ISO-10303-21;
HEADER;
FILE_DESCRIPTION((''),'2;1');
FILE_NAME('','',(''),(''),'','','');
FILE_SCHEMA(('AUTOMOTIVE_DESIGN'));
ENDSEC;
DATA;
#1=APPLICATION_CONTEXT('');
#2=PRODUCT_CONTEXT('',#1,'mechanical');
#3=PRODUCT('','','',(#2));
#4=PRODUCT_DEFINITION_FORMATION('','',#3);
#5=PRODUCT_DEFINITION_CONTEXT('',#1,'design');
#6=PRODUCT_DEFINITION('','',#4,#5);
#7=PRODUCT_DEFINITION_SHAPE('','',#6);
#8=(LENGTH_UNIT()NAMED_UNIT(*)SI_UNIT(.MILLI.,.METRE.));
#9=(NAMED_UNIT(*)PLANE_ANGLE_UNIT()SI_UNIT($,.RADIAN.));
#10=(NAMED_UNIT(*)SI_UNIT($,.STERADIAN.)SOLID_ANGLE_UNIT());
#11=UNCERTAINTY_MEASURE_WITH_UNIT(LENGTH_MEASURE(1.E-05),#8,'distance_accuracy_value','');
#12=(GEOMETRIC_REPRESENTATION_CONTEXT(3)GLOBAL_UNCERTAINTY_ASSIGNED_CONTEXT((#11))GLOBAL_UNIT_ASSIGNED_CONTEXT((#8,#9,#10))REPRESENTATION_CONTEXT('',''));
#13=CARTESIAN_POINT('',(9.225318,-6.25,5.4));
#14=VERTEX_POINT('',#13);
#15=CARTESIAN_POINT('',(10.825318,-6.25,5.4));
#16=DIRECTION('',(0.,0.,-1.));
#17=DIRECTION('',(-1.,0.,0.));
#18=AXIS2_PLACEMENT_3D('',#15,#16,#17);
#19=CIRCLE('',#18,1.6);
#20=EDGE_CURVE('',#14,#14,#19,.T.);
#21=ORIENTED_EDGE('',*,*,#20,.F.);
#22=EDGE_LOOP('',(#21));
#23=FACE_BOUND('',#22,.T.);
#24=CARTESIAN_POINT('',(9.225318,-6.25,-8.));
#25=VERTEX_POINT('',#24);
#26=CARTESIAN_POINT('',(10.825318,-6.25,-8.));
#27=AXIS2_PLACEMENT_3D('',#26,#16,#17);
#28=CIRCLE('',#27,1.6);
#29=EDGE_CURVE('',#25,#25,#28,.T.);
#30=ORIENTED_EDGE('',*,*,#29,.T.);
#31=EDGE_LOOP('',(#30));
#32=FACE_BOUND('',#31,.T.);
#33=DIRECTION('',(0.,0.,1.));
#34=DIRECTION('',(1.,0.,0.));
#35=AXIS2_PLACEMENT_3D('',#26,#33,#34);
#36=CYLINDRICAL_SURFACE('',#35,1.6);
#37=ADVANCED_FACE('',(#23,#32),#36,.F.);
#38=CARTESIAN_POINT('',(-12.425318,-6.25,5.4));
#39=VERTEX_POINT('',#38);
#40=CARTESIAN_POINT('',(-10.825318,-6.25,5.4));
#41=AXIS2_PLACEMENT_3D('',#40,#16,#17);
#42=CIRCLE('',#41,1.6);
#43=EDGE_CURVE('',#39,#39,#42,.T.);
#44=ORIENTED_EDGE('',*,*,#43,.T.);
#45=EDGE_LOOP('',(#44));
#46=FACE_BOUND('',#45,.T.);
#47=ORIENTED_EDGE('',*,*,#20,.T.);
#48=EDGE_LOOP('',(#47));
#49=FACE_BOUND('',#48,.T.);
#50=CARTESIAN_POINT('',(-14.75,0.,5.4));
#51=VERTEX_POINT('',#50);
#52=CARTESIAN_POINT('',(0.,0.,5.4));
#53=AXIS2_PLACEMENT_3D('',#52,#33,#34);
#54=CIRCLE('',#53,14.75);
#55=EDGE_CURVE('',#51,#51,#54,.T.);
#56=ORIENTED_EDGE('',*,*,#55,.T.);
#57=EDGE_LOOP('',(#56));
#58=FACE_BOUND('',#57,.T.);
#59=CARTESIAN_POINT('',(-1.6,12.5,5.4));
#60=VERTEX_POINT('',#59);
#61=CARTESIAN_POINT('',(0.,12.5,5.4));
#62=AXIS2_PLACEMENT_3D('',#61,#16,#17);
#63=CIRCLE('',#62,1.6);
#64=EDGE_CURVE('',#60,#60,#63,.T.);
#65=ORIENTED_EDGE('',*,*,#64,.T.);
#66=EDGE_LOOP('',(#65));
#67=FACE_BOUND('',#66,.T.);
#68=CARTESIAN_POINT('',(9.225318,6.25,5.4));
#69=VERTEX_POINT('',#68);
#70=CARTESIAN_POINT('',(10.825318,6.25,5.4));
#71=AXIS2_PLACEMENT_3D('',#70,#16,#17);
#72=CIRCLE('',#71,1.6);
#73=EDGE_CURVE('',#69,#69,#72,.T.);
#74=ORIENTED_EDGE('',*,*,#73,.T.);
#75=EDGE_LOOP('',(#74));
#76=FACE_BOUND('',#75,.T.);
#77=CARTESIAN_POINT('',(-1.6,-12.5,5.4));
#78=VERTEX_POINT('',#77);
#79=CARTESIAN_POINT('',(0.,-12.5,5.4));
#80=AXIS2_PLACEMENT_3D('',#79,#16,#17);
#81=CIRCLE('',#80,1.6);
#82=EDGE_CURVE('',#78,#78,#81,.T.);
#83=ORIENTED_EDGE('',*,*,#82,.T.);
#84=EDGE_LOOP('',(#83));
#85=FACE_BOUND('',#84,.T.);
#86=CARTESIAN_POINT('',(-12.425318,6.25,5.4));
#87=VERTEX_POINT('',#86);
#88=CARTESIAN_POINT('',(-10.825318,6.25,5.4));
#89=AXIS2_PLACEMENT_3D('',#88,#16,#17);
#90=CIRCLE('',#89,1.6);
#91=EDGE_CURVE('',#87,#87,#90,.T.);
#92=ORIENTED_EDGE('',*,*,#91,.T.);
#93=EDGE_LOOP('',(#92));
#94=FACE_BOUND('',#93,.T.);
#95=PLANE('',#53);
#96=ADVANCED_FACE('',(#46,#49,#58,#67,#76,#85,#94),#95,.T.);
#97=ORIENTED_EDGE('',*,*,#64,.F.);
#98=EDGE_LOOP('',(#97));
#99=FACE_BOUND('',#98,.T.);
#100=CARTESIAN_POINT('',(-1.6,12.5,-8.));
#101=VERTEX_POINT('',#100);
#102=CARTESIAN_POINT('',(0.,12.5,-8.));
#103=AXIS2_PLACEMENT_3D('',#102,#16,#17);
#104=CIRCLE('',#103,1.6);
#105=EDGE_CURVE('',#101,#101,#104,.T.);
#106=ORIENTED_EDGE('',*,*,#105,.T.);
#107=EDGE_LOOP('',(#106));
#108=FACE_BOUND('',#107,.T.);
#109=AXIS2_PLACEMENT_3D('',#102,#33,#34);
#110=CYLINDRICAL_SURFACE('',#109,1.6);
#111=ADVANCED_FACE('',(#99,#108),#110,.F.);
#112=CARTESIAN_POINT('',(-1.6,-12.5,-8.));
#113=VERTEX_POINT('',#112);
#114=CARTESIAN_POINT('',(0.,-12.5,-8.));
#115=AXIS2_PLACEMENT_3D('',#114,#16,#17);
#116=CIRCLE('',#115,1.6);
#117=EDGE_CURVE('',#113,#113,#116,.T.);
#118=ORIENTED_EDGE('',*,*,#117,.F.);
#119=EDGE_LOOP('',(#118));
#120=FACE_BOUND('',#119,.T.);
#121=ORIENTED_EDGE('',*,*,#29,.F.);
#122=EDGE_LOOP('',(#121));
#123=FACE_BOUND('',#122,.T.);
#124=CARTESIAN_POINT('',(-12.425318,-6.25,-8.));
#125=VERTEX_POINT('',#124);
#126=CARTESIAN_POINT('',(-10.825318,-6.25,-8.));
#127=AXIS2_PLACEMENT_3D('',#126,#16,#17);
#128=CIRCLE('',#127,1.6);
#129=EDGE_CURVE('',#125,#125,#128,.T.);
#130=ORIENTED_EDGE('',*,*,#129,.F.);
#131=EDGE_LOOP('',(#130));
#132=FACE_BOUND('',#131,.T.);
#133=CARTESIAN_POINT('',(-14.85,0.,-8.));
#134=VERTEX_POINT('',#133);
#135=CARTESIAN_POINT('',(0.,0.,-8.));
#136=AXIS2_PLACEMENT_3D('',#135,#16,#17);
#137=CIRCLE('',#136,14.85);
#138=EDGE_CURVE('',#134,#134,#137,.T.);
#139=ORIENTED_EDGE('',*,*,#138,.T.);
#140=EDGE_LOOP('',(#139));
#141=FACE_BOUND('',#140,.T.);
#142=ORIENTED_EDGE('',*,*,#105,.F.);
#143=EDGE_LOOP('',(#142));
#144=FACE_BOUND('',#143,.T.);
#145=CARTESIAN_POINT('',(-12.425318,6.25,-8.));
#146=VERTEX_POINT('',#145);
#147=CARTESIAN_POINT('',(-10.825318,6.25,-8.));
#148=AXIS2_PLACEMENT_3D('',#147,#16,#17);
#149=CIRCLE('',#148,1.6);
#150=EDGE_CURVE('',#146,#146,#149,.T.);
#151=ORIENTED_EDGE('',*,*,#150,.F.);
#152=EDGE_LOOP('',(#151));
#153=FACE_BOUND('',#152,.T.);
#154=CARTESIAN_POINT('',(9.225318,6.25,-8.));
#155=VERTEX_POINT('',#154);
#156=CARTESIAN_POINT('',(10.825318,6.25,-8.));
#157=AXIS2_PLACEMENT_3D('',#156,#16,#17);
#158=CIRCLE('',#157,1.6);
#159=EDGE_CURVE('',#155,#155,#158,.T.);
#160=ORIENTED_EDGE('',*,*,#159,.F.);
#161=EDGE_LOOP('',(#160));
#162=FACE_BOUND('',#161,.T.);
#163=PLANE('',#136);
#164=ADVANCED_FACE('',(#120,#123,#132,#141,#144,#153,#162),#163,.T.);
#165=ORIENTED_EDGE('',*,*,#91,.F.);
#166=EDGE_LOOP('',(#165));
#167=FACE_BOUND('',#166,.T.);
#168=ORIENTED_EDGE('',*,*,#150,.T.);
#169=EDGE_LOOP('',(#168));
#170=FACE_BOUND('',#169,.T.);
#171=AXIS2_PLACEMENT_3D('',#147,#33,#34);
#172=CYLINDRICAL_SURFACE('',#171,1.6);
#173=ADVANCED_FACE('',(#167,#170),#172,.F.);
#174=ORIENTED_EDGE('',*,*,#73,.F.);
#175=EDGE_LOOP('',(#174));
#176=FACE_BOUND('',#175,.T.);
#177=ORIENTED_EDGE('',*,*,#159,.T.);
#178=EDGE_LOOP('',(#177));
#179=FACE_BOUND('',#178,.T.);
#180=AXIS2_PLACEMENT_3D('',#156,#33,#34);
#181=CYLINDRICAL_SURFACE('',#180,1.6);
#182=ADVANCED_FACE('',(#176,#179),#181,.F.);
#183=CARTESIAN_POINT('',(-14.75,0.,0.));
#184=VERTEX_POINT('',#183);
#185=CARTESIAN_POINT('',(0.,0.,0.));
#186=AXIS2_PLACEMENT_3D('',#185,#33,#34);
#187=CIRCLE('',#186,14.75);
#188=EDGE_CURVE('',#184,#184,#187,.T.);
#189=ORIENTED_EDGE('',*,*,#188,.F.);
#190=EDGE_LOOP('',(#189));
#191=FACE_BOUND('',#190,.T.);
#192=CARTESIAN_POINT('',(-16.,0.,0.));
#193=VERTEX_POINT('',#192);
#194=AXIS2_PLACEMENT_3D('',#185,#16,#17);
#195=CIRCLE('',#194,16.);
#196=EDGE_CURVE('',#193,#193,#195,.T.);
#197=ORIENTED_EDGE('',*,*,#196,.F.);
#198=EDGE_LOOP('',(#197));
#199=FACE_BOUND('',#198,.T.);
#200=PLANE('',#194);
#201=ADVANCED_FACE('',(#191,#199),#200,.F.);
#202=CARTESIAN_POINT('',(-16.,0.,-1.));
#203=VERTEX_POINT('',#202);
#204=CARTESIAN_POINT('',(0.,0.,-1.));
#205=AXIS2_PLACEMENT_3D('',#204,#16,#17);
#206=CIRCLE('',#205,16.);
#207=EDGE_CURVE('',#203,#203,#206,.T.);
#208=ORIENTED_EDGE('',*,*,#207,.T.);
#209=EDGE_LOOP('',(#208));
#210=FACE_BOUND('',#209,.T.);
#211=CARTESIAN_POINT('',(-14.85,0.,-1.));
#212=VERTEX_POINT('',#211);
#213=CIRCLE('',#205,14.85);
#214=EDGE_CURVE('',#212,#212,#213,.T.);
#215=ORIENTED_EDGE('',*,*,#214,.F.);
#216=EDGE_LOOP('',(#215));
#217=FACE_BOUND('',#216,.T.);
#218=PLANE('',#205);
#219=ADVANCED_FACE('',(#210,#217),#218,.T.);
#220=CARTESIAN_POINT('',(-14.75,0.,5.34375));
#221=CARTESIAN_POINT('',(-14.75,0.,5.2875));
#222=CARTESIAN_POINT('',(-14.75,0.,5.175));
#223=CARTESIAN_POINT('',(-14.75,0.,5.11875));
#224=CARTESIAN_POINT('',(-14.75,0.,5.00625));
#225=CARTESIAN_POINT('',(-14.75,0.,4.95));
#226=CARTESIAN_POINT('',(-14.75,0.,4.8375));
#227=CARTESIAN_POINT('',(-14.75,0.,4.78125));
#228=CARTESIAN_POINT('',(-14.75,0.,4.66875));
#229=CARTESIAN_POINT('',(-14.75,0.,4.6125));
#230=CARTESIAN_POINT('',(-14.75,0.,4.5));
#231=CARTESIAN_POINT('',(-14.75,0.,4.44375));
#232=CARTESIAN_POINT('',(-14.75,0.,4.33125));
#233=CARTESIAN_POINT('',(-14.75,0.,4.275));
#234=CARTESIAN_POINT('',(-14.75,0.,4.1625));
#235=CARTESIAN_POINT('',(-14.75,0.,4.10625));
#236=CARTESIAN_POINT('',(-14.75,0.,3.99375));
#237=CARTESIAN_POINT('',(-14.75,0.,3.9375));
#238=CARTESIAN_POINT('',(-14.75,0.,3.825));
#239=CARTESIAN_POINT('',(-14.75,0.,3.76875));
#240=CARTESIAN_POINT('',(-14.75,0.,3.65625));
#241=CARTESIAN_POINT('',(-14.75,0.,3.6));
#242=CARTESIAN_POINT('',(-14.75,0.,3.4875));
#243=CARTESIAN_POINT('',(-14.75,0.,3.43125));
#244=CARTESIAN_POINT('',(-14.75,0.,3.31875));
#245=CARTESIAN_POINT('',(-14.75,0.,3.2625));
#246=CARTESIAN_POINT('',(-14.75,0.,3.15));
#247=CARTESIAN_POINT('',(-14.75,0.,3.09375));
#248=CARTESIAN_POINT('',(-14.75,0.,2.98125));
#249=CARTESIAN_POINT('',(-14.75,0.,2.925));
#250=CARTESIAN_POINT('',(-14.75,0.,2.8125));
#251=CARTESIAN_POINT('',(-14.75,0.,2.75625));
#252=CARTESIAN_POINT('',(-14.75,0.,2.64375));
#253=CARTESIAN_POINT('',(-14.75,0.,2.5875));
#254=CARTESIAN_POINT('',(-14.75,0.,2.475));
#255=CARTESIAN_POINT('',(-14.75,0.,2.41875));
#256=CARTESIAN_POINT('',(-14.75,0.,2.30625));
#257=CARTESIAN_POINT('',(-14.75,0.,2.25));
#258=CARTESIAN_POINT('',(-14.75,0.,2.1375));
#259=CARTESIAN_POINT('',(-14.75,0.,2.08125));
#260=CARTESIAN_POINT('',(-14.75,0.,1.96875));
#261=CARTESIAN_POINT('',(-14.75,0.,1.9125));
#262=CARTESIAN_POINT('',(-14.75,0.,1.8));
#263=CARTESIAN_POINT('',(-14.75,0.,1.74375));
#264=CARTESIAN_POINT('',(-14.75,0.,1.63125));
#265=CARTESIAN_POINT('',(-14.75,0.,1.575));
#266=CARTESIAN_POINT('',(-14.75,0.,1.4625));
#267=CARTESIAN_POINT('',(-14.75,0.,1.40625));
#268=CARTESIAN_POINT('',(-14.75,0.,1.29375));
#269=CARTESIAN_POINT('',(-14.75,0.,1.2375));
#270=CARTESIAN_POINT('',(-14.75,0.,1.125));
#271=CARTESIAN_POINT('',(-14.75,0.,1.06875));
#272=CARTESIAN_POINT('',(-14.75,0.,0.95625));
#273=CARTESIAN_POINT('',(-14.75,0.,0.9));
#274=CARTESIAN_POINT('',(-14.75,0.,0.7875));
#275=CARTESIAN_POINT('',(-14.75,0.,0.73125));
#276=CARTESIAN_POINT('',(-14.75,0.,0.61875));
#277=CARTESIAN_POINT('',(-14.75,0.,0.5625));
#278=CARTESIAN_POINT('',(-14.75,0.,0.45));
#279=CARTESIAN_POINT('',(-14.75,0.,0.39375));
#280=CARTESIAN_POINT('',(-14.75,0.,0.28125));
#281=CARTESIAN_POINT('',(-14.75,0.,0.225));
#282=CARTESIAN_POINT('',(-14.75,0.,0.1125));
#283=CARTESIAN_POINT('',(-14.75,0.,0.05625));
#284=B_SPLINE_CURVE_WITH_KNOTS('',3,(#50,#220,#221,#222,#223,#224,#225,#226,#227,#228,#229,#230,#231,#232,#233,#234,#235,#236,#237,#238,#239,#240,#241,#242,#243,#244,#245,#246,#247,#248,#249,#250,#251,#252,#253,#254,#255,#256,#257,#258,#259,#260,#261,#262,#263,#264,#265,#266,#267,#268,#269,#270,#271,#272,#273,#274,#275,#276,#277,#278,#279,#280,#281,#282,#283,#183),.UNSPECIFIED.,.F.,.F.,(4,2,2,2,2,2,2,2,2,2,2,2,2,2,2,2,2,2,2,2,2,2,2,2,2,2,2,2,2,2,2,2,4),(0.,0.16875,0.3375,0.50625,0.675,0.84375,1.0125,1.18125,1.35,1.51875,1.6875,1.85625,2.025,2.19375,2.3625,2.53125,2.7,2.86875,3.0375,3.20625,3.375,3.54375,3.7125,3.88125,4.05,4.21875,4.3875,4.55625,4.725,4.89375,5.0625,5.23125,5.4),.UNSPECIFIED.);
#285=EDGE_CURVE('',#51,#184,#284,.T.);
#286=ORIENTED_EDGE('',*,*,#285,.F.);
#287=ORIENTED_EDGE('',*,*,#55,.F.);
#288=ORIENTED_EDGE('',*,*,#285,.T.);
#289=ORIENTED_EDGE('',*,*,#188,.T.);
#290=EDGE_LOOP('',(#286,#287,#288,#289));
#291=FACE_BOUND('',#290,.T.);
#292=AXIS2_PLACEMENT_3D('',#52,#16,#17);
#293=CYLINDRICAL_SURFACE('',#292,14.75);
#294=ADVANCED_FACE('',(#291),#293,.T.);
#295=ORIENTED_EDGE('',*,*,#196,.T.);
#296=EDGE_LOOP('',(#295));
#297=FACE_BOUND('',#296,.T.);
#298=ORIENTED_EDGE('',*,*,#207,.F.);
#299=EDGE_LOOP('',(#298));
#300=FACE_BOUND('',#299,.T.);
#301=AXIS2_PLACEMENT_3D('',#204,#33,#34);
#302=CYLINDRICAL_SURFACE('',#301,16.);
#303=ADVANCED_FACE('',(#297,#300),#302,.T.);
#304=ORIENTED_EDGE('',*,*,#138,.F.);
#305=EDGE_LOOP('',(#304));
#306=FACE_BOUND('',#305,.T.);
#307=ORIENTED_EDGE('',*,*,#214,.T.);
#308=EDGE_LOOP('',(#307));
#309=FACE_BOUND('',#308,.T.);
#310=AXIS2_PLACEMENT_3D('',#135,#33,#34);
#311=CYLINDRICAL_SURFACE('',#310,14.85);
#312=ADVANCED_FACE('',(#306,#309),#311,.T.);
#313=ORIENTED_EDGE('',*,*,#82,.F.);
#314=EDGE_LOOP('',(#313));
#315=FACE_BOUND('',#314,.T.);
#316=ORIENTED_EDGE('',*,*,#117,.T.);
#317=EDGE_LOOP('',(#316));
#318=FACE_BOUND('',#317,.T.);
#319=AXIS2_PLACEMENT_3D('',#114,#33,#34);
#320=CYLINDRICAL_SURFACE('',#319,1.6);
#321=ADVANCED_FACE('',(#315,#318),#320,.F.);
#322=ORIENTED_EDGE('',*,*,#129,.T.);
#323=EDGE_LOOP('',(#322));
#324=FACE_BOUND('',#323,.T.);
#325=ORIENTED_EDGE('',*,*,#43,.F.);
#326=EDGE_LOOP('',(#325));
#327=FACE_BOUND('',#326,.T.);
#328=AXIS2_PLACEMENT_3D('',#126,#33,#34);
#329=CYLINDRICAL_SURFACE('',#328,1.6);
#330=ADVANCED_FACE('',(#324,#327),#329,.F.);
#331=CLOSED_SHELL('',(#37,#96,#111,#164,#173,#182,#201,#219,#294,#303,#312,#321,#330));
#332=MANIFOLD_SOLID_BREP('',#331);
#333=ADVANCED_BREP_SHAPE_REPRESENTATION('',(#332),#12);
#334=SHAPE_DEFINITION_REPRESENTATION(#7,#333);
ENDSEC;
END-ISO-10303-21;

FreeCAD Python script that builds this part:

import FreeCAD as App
import Part
import Sketcher

doc = App.newDocument("Part")
params = doc.addObject("Spreadsheet::Sheet", "Params")
for row, (alias, value) in enumerate([
    ("sketch1_diameter", "29.5 mm"),
    ("pad1_length", "5.4 mm"),
    ("sketch2_diameter", "32 mm"),
    ("pad2_length", "1 mm"),
    ("sketch3_diameter", "29.7 mm"),
    ("pad3_length", "7 mm"),
    ("sketch4_diameter", "3.2 mm"),
], start=1):
    params.set(f"A{row}", alias)
    params.set(f"B{row}", "=" + value)
    params.setAlias(f"B{row}", alias)

body = doc.addObject("PartDesign::Body", "Body")

# Sketch on XY plane
sketch1 = body.newObject("Sketcher::SketchObject", "Sketch")
sketch1.AttachmentSupport = (doc.getObject("XY_Plane"), [""])
sketch1.MapMode = "FlatFace"
sketch1.addGeometry(Part.Circle(App.Vector(0, 0, 0), App.Vector(0, 0, 1), 15), False)
sketch1.addConstraint([
    Sketcher.Constraint("Coincident", 0, 3, -1, 1),
    Sketcher.Constraint("Diameter", 0, 29.5),
])
sketch1.setExpression("Constraints[1]", "Params.sketch1_diameter")
pad1 = body.newObject("PartDesign::Pad", "Pad")
pad1.Profile = sketch1
pad1.setExpression("Length", "Params.pad1_length")

# Sketch on XY plane
sketch2 = body.newObject("Sketcher::SketchObject", "Sketch001")
sketch2.AttachmentSupport = (doc.getObject("XY_Plane"), [""])
sketch2.MapMode = "FlatFace"
sketch2.addGeometry(Part.Circle(App.Vector(0, 0, 0), App.Vector(0, 0, 1), 16), False)
sketch2.addConstraint([
    Sketcher.Constraint("Coincident", 0, 3, -1, 1),
    Sketcher.Constraint("Diameter", 0, 32.0),
])
sketch2.setExpression("Constraints[1]", "Params.sketch2_diameter")
pad2 = body.newObject("PartDesign::Pad", "Pad001")
pad2.Profile = sketch2
pad2.setExpression("Length", "Params.pad2_length")
pad2.Reversed = True

# Sketch on XY plane
sketch3 = body.newObject("Sketcher::SketchObject", "Sketch002")
sketch3.AttachmentSupport = (doc.getObject("XY_Plane"), [""])
sketch3.MapMode = "FlatFace"
sketch3.AttachmentOffset = App.Placement(App.Vector(0, 0, -1), App.Rotation())
sketch3.addGeometry(Part.Circle(App.Vector(0, 0, 0), App.Vector(0, 0, 1), 15), False)
sketch3.addConstraint([
    Sketcher.Constraint("Coincident", 0, 3, -1, 1),
    Sketcher.Constraint("Diameter", 0, 29.7),
])
sketch3.setExpression("Constraints[1]", "Params.sketch3_diameter")
pad3 = body.newObject("PartDesign::Pad", "Pad002")
pad3.Profile = sketch3
pad3.setExpression("Length", "Params.pad3_length")
pad3.Reversed = True

# Sketch on XY plane
sketch4 = body.newObject("Sketcher::SketchObject", "Sketch003")
sketch4.AttachmentSupport = (doc.getObject("XY_Plane"), [""])
sketch4.MapMode = "FlatFace"
sketch4.AttachmentOffset = App.Placement(App.Vector(0, 0, 5.4), App.Rotation())
sketch4.addGeometry([
    Part.Circle(App.Vector(-10.8, -6.2, 0), App.Vector(0, 0, 1), 1.6),  # 0
    Part.Circle(App.Vector(10.8, 6.2, 0), App.Vector(0, 0, 1), 1.6),  # 1
    Part.Circle(App.Vector(10.8, -6.2, 0), App.Vector(0, 0, 1), 1.6),  # 2
    Part.Circle(App.Vector(0, -12.5, 0), App.Vector(0, 0, 1), 1.6),  # 3
    Part.Circle(App.Vector(-10.8, 6.2, 0), App.Vector(0, 0, 1), 1.6),  # 4
    Part.Circle(App.Vector(0, 12.5, 0), App.Vector(0, 0, 1), 1.6),  # 5
], False)
sketch4.addConstraint([
    Sketcher.Constraint("Equal", 0, 1),
    Sketcher.Constraint("Equal", 1, 2),
    Sketcher.Constraint("Equal", 2, 3),
    Sketcher.Constraint("Equal", 3, 4),
    Sketcher.Constraint("Equal", 4, 5),
    Sketcher.Constraint("Symmetric", 0, 3, 1, 3, -1, 1),
    Sketcher.Constraint("Symmetric", 2, 3, 4, 3, -1, 1),
    Sketcher.Constraint("Symmetric", 3, 3, 5, 3, -1, 1),
    Sketcher.Constraint("Symmetric", 0, 3, 2, 3, -2),
    Sketcher.Constraint("PointOnObject", 3, 3, -2),
    Sketcher.Constraint("Diameter", 0, 3.2),
    Sketcher.Constraint("DistanceY", 3, 3, 5, 3, 25.0),
    Sketcher.Constraint("DistanceY", 0, 3, 1, 3, 12.5),
    Sketcher.Constraint("DistanceX", 0, 3, -1, 1, 10.825318),
])
sketch4.setExpression("Constraints[10]", "Params.sketch4_diameter")
pocket1 = body.newObject("PartDesign::Pocket", "Pocket")
pocket1.Profile = sketch4
pocket1.Type = "ThroughAll"

doc.recompute()
